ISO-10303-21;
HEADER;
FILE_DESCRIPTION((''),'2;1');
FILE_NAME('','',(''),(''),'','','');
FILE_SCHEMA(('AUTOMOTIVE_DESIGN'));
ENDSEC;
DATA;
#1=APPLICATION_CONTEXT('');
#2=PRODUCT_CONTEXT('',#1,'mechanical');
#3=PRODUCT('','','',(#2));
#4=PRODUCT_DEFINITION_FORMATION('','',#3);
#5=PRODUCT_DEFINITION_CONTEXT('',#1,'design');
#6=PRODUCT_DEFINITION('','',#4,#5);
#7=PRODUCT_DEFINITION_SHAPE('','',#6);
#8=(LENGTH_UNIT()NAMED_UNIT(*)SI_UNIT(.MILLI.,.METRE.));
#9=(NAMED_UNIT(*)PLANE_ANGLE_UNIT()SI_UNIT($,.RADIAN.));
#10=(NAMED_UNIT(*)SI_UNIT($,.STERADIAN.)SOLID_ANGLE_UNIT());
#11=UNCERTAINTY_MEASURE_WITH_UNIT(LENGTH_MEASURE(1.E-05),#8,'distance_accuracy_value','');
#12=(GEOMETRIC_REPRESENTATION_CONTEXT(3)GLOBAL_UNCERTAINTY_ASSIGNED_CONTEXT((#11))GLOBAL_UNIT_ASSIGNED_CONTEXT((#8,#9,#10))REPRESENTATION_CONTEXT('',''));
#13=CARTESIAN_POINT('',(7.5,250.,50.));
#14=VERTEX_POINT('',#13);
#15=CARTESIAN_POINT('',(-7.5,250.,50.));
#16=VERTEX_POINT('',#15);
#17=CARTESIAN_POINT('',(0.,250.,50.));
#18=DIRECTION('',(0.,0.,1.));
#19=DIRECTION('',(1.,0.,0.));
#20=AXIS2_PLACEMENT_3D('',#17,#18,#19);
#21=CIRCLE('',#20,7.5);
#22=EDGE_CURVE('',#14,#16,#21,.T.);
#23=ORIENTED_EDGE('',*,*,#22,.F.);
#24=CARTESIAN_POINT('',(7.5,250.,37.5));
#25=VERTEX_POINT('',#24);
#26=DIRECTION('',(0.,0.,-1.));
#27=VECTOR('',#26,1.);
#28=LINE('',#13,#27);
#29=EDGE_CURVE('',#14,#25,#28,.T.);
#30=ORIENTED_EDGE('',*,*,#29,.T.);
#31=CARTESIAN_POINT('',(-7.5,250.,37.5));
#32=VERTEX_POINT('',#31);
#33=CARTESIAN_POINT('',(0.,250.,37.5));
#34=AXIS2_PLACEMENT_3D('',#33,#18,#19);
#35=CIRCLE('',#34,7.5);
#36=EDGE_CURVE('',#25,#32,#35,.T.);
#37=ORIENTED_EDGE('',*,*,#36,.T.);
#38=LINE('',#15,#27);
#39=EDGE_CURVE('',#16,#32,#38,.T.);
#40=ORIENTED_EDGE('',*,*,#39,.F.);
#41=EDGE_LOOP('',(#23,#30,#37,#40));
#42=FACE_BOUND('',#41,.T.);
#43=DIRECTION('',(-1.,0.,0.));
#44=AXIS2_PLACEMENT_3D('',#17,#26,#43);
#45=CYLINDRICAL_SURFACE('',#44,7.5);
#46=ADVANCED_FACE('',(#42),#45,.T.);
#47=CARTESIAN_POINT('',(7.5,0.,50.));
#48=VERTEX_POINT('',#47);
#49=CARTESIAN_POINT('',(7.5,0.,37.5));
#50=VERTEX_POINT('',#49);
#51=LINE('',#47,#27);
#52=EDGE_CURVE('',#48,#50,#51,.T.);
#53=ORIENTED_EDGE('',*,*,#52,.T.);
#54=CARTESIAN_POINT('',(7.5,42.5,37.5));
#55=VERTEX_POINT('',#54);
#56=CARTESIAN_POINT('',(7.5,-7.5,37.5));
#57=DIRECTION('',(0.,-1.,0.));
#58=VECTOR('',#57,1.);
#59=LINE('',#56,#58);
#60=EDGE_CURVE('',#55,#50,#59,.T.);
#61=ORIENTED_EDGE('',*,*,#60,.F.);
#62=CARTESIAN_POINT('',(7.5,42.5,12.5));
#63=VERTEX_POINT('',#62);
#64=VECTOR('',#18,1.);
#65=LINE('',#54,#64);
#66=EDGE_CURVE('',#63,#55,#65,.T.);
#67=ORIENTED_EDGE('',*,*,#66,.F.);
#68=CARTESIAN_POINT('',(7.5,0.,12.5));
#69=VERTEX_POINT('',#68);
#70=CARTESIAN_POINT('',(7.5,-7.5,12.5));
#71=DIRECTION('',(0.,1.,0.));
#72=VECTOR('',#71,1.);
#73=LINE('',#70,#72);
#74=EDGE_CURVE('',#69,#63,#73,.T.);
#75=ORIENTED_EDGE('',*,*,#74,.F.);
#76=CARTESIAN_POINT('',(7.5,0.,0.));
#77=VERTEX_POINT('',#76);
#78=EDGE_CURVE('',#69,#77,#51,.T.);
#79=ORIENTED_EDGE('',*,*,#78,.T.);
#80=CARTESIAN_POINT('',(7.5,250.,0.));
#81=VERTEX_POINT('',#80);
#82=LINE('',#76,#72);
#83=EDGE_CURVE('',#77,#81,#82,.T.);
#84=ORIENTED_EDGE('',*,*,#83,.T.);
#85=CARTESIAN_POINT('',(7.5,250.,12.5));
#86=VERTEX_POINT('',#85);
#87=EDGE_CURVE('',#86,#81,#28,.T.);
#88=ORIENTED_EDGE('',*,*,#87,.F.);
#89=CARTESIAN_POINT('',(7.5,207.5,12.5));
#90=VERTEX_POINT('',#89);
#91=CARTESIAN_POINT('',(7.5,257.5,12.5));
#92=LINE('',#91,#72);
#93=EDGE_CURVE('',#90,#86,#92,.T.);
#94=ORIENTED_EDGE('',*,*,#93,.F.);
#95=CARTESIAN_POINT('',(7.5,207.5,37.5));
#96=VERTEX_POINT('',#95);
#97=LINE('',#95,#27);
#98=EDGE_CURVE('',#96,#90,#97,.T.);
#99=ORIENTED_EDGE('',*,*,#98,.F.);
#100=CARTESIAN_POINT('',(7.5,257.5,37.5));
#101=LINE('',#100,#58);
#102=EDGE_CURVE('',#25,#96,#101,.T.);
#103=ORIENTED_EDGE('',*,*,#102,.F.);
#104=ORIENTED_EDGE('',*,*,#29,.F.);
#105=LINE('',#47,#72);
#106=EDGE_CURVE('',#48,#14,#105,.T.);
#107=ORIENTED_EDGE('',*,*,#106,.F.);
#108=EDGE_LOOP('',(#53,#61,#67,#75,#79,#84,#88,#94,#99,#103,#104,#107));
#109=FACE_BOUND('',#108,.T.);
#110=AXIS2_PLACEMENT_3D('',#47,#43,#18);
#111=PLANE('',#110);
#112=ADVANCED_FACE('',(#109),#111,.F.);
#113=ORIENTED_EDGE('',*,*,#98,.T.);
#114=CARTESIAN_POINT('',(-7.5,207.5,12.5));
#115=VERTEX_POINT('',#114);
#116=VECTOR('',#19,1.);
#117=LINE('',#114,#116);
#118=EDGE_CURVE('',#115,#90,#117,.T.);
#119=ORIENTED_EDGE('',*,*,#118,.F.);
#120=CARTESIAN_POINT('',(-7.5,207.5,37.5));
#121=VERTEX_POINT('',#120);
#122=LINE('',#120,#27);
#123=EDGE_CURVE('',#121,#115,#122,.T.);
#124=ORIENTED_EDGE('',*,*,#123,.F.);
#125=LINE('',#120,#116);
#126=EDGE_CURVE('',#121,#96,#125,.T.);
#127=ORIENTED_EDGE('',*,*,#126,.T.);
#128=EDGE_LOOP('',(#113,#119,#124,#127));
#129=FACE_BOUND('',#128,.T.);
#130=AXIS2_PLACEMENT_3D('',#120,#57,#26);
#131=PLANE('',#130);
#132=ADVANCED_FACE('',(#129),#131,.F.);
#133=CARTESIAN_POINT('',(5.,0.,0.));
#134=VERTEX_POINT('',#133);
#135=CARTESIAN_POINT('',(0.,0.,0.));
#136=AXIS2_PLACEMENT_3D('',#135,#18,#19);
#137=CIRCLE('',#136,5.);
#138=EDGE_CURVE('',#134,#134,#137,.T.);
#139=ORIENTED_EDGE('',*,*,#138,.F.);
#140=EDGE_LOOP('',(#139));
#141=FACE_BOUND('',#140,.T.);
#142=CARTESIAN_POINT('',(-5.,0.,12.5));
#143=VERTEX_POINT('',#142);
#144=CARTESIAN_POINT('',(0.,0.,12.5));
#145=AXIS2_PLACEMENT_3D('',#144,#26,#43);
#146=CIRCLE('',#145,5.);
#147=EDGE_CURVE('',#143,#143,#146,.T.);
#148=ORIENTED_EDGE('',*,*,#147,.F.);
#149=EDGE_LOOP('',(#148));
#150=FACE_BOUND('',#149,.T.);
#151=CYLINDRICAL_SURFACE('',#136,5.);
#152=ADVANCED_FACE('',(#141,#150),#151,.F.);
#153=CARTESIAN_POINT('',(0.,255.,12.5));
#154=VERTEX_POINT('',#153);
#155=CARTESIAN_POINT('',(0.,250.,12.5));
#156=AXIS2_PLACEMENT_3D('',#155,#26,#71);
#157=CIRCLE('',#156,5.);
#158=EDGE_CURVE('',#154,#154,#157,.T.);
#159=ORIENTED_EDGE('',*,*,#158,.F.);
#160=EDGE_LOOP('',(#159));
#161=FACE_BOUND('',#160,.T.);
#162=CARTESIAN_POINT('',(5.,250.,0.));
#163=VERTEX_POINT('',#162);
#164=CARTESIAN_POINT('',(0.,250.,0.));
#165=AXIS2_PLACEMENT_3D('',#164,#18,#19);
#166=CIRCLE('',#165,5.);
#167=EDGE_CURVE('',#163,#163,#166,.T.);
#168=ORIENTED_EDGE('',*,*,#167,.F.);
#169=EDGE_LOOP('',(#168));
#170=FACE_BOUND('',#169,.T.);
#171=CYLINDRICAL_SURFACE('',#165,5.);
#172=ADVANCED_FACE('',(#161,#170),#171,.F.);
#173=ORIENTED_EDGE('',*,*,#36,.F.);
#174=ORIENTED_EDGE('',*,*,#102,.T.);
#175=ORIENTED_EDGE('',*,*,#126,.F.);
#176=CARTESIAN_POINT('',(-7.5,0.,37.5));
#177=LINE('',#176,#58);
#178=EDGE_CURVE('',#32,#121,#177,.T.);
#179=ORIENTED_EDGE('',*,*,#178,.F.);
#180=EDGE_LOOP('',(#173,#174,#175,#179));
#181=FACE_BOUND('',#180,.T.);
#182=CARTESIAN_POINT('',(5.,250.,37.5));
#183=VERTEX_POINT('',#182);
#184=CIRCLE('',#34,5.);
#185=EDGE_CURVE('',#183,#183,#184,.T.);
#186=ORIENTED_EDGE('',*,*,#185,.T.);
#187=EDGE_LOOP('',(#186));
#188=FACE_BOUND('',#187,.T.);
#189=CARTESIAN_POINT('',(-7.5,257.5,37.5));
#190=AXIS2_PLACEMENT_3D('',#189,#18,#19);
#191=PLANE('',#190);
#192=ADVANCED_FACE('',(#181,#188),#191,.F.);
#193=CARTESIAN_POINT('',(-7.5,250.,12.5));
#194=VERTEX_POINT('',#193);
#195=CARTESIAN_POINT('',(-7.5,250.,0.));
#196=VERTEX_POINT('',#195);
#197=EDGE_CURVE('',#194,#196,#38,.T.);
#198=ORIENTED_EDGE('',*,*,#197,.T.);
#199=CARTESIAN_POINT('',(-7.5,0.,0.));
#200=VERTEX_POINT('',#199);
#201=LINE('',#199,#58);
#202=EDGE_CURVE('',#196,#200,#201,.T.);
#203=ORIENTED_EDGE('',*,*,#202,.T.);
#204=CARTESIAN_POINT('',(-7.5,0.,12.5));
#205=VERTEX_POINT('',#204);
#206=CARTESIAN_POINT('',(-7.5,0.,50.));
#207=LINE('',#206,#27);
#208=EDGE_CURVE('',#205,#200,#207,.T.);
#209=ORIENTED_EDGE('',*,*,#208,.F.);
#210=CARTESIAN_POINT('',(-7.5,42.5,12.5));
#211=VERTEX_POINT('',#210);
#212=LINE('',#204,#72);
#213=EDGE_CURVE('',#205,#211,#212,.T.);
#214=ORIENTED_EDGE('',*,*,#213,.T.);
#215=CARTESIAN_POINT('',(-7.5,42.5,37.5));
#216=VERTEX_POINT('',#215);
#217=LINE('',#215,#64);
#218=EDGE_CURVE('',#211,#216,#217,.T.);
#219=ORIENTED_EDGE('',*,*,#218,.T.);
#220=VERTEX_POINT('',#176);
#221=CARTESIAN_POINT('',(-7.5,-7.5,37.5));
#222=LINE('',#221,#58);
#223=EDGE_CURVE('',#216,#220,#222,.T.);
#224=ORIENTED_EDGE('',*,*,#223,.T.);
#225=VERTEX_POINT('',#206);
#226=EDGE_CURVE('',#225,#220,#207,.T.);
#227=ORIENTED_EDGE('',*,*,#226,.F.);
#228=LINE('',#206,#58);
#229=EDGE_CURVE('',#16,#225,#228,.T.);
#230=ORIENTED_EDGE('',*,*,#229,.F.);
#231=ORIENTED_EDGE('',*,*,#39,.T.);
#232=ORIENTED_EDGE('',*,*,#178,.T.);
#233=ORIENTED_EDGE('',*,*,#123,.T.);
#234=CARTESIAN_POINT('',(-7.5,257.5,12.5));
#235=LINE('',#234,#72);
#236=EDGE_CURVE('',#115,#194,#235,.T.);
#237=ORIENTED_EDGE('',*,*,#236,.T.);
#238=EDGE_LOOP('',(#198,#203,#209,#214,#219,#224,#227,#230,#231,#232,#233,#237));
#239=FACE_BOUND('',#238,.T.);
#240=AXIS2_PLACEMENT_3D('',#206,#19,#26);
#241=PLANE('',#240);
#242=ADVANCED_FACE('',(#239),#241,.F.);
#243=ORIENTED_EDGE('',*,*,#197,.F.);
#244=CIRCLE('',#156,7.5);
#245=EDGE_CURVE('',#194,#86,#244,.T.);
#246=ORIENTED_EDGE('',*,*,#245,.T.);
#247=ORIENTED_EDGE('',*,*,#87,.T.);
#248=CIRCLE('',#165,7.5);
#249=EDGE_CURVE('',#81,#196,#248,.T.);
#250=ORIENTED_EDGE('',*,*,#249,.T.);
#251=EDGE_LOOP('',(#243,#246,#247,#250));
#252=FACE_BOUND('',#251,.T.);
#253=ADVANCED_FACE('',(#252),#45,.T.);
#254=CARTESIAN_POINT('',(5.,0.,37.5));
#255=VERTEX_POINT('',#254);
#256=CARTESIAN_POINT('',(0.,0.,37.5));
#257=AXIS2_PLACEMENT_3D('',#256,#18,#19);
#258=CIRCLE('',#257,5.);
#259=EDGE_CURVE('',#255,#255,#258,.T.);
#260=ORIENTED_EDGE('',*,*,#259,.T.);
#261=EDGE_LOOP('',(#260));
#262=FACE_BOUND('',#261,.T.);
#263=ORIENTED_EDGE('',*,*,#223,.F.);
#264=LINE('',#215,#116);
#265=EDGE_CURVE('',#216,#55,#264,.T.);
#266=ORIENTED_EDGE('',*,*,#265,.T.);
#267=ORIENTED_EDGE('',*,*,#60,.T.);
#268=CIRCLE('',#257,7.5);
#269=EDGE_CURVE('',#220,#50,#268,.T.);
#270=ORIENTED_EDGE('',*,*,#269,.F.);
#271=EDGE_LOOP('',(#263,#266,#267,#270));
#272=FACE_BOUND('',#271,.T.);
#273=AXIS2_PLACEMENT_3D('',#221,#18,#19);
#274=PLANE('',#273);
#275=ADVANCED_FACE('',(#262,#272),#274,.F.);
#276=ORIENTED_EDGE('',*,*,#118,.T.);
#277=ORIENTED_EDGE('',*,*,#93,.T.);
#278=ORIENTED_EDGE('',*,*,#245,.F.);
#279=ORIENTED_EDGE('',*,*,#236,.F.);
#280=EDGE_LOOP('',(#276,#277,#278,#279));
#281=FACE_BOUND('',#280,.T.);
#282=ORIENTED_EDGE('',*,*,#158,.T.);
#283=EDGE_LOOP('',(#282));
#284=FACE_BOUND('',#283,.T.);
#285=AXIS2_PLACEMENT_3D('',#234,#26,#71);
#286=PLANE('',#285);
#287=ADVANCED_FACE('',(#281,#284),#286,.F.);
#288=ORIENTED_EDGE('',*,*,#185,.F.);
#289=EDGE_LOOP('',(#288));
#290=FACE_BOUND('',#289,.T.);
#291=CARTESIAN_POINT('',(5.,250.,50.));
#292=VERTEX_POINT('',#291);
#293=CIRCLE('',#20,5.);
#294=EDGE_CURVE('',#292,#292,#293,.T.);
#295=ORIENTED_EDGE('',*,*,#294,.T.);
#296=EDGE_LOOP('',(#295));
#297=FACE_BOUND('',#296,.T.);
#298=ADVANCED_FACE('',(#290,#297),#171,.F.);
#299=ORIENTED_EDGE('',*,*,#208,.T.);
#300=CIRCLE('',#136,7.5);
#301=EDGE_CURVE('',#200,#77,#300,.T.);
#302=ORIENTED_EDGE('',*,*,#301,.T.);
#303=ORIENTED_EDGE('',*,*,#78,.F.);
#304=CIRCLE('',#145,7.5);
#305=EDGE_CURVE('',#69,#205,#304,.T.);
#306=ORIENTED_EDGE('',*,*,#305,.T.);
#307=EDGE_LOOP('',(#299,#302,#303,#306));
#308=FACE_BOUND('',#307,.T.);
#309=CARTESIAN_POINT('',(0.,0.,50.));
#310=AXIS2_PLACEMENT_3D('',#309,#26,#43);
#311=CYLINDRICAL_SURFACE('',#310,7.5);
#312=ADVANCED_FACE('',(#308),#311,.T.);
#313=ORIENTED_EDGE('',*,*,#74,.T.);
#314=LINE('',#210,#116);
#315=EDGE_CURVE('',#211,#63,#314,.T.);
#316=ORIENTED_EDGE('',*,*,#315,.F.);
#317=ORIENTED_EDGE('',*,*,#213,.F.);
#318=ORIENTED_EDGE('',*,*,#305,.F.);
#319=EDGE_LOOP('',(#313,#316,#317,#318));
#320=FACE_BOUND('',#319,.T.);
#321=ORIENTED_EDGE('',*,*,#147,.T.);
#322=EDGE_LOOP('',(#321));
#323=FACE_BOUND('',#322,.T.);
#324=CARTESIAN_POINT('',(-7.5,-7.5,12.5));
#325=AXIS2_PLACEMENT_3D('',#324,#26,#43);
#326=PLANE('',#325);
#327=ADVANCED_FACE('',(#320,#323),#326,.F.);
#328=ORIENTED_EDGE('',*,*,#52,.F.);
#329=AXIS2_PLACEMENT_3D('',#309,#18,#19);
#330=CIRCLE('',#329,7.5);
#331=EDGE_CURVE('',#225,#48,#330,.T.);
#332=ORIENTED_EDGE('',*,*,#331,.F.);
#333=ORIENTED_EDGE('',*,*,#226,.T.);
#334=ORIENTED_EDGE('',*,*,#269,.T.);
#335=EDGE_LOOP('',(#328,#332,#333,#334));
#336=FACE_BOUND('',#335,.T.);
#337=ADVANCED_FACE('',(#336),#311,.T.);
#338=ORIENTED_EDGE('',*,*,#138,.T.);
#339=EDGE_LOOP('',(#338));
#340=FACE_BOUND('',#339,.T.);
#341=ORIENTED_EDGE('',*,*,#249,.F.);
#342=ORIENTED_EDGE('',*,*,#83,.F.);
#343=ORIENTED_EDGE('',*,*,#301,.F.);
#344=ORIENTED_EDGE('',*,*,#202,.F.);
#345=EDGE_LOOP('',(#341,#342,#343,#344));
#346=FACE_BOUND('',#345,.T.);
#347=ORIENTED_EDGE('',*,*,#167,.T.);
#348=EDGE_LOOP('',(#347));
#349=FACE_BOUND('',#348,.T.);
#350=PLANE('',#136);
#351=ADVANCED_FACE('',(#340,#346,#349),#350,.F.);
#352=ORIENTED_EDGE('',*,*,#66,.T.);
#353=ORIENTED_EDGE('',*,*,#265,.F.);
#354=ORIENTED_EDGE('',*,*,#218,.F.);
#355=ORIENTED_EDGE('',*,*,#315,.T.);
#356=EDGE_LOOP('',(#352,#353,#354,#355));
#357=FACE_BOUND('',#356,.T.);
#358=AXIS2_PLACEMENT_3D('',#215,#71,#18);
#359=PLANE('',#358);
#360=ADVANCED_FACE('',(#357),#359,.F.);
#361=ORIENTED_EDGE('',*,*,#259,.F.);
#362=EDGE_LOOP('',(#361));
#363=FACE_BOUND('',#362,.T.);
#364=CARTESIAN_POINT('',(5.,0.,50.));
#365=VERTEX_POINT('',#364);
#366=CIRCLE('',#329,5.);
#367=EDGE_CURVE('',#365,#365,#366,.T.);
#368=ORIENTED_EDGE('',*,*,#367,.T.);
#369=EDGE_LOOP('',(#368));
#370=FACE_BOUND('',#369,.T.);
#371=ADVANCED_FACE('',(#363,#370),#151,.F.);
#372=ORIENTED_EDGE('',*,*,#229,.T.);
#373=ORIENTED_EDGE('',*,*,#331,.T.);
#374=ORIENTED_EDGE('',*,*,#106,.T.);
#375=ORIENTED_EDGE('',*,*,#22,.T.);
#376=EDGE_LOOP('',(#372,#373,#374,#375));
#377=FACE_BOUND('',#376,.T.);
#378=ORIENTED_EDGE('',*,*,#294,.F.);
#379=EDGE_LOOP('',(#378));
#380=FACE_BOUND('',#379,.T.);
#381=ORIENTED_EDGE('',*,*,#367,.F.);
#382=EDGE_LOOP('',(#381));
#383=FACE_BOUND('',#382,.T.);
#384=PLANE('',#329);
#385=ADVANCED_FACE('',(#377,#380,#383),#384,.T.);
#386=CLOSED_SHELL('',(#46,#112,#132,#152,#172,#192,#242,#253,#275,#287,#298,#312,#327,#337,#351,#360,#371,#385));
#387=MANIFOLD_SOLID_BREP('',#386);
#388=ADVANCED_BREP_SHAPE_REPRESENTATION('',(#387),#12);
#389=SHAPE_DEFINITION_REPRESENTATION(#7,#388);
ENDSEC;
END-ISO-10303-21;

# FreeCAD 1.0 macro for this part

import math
import FreeCAD as App
import Part
import Sketcher

V = App.Vector
Q = App.Units.Quantity

doc = App.newDocument("Part")
params = doc.addObject("Spreadsheet::Sheet", "Params")
for row, (alias, value) in enumerate([
    ("sketch1_radius", "7.5 mm"),
    ("sketch1_height", "250 mm"),
    ("pad1_length", "50 mm"),
    ("sketch2_width", "50 mm"),
    ("sketch2_height", "25 mm"),
    ("sketch3_diameter", "10 mm"),
], start=1):
    params.set(f"A{row}", alias)
    params.set(f"B{row}", "=" + value)
    params.setAlias(f"B{row}", alias)

body = doc.addObject("PartDesign::Body", "Body")

# Sketch on XY plane
sketch1 = body.newObject("Sketcher::SketchObject", "Sketch")
sketch1.AttachmentSupport = (doc.getObject("XY_Plane"), [""])
sketch1.MapMode = "FlatFace"
sketch1.addGeometry(Part.LineSegment(V(-7.5, 250, 0), V(-7.5, 0, 0)), False)
sketch1.addGeometry(Part.ArcOfCircle(Part.Circle(V(0, 0, 0), V(0, 0, 1), 7.5), math.radians(180), math.radians(360)), False)
sketch1.addGeometry(Part.LineSegment(V(7.5, 0, 0), V(7.5, 250, 0)), False)
sketch1.addGeometry(Part.ArcOfCircle(Part.Circle(V(0, 250, 0), V(0, 0, 1), 7.5), math.radians(0), math.radians(180)), False)
sketch1.addConstraint(Sketcher.Constraint("Tangent", 0, 2, 1, 1))
sketch1.addConstraint(Sketcher.Constraint("Tangent", 1, 2, 2, 1))
sketch1.addConstraint(Sketcher.Constraint("Tangent", 2, 2, 3, 1))
sketch1.addConstraint(Sketcher.Constraint("Tangent", 3, 2, 0, 1))
sketch1.addConstraint(Sketcher.Constraint("Vertical", 0))
sketch1.addConstraint(Sketcher.Constraint("Vertical", 2))
sketch1.addConstraint(Sketcher.Constraint("Coincident", 1, 3, -1, 1))
sketch1.addConstraint(Sketcher.Constraint("Radius", 1, Q("7.5 mm")))
sketch1.addConstraint(Sketcher.Constraint("DistanceY", 0, 2, 0, 1, Q("250 mm")))
sketch1.setExpression("Constraints[7]", "Params.sketch1_radius")
sketch1.setExpression("Constraints[8]", "Params.sketch1_height")
pad1 = body.newObject("PartDesign::Pad", "Pad")
pad1.Profile = sketch1
pad1.setExpression("Length", "Params.pad1_length")

# Sketch on YZ plane
sketch2 = body.newObject("Sketcher::SketchObject", "Sketch001")
sketch2.AttachmentSupport = (doc.getObject("YZ_Plane"), [""])
sketch2.MapMode = "FlatFace"
sketch2.AttachmentOffset = App.Placement(V(0, 0, 7.5), App.Rotation())
sketch2.addGeometry(Part.LineSegment(V(257.5, 37.5, 0), V(207.5, 37.5, 0)), False)
sketch2.addGeometry(Part.LineSegment(V(207.5, 37.5, 0), V(207.5, 12.5, 0)), False)
sketch2.addGeometry(Part.LineSegment(V(207.5, 12.5, 0), V(257.5, 12.5, 0)), False)
sketch2.addGeometry(Part.LineSegment(V(257.5, 12.5, 0), V(257.5, 37.5, 0)), False)
sketch2.addGeometry(Part.LineSegment(V(42.5, 37.5, 0), V(-7.5, 37.5, 0)), False)
sketch2.addGeometry(Part.LineSegment(V(-7.5, 37.5, 0), V(-7.5, 12.5, 0)), False)
sketch2.addGeometry(Part.LineSegment(V(-7.5, 12.5, 0), V(42.5, 12.5, 0)), False)
sketch2.addGeometry(Part.LineSegment(V(42.5, 12.5, 0), V(42.5, 37.5, 0)), False)
sketch2.addConstraint(Sketcher.Constraint("Coincident", 0, 2, 1, 1))
sketch2.addConstraint(Sketcher.Constraint("Coincident", 1, 2, 2, 1))
sketch2.addConstraint(Sketcher.Constraint("Coincident", 2, 2, 3, 1))
sketch2.addConstraint(Sketcher.Constraint("Coincident", 3, 2, 0, 1))
sketch2.addConstraint(Sketcher.Constraint("Coincident", 4, 2, 5, 1))
sketch2.addConstraint(Sketcher.Constraint("Coincident", 5, 2, 6, 1))
sketch2.addConstraint(Sketcher.Constraint("Coincident", 6, 2, 7, 1))
sketch2.addConstraint(Sketcher.Constraint("Coincident", 7, 2, 4, 1))
sketch2.addConstraint(Sketcher.Constraint("Horizontal", 0))
sketch2.addConstraint(Sketcher.Constraint("Vertical", 1))
sketch2.addConstraint(Sketcher.Constraint("Horizontal", 2))
sketch2.addConstraint(Sketcher.Constraint("Vertical", 3))
sketch2.addConstraint(Sketcher.Constraint("Horizontal", 4))
sketch2.addConstraint(Sketcher.Constraint("Vertical", 5))
sketch2.addConstraint(Sketcher.Constraint("Horizontal", 6))
sketch2.addConstraint(Sketcher.Constraint("Vertical", 7))
sketch2.addConstraint(Sketcher.Constraint("Horizontal", 3, 2, 4, 2))
sketch2.addConstraint(Sketcher.Constraint("Horizontal", 2, 2, 5, 2))
sketch2.addConstraint(Sketcher.Constraint("Equal", 2, 4))
sketch2.addConstraint(Sketcher.Constraint("DistanceX", 0, 2, 0, 1, Q("50 mm")))
sketch2.addConstraint(Sketcher.Constraint("DistanceY", 1, 2, 1, 1, Q("25 mm")))
sketch2.addConstraint(Sketcher.Constraint("DistanceX", 4, 2, 0, 2, Q("215 mm")))
sketch2.addConstraint(Sketcher.Constraint("DistanceX", -1, 1, 0, 2, Q("207.5 mm")))
sketch2.addConstraint(Sketcher.Constraint("DistanceY", -1, 1, 0, 2, Q("37.5 mm")))
sketch2.setExpression("Constraints[19]", "Params.sketch2_width")
sketch2.setExpression("Constraints[20]", "Params.sketch2_height")
pocket1 = body.newObject("PartDesign::Pocket", "Pocket")
pocket1.Profile = sketch2
pocket1.Type = "ThroughAll"

# Sketch on XY plane
sketch3 = body.newObject("Sketcher::SketchObject", "Sketch002")
sketch3.AttachmentSupport = (doc.getObject("XY_Plane"), [""])
sketch3.MapMode = "FlatFace"
sketch3.AttachmentOffset = App.Placement(V(0, 0, 50), App.Rotation())
sketch3.addGeometry(Part.Circle(V(0, 250, 0), V(0, 0, 1), 5), False)
sketch3.addGeometry(Part.Circle(V(0, 0, 0), V(0, 0, 1), 5), False)
sketch3.addConstraint(Sketcher.Constraint("Coincident", 1, 3, -1, 1))
sketch3.addConstraint(Sketcher.Constraint("Equal", 0, 1))
sketch3.addConstraint(Sketcher.Constraint("PointOnObject", 0, 3, -2))
sketch3.addConstraint(Sketcher.Constraint("Diameter", 0, Q("10 mm")))
sketch3.addConstraint(Sketcher.Constraint("DistanceY", -1, 1, 0, 3, Q("250 mm")))
sketch3.setExpression("Constraints[3]", "Params.sketch3_diameter")
pocket2 = body.newObject("PartDesign::Pocket", "Pocket001")
pocket2.Profile = sketch3
pocket2.Type = "ThroughAll"

doc.recompute()
